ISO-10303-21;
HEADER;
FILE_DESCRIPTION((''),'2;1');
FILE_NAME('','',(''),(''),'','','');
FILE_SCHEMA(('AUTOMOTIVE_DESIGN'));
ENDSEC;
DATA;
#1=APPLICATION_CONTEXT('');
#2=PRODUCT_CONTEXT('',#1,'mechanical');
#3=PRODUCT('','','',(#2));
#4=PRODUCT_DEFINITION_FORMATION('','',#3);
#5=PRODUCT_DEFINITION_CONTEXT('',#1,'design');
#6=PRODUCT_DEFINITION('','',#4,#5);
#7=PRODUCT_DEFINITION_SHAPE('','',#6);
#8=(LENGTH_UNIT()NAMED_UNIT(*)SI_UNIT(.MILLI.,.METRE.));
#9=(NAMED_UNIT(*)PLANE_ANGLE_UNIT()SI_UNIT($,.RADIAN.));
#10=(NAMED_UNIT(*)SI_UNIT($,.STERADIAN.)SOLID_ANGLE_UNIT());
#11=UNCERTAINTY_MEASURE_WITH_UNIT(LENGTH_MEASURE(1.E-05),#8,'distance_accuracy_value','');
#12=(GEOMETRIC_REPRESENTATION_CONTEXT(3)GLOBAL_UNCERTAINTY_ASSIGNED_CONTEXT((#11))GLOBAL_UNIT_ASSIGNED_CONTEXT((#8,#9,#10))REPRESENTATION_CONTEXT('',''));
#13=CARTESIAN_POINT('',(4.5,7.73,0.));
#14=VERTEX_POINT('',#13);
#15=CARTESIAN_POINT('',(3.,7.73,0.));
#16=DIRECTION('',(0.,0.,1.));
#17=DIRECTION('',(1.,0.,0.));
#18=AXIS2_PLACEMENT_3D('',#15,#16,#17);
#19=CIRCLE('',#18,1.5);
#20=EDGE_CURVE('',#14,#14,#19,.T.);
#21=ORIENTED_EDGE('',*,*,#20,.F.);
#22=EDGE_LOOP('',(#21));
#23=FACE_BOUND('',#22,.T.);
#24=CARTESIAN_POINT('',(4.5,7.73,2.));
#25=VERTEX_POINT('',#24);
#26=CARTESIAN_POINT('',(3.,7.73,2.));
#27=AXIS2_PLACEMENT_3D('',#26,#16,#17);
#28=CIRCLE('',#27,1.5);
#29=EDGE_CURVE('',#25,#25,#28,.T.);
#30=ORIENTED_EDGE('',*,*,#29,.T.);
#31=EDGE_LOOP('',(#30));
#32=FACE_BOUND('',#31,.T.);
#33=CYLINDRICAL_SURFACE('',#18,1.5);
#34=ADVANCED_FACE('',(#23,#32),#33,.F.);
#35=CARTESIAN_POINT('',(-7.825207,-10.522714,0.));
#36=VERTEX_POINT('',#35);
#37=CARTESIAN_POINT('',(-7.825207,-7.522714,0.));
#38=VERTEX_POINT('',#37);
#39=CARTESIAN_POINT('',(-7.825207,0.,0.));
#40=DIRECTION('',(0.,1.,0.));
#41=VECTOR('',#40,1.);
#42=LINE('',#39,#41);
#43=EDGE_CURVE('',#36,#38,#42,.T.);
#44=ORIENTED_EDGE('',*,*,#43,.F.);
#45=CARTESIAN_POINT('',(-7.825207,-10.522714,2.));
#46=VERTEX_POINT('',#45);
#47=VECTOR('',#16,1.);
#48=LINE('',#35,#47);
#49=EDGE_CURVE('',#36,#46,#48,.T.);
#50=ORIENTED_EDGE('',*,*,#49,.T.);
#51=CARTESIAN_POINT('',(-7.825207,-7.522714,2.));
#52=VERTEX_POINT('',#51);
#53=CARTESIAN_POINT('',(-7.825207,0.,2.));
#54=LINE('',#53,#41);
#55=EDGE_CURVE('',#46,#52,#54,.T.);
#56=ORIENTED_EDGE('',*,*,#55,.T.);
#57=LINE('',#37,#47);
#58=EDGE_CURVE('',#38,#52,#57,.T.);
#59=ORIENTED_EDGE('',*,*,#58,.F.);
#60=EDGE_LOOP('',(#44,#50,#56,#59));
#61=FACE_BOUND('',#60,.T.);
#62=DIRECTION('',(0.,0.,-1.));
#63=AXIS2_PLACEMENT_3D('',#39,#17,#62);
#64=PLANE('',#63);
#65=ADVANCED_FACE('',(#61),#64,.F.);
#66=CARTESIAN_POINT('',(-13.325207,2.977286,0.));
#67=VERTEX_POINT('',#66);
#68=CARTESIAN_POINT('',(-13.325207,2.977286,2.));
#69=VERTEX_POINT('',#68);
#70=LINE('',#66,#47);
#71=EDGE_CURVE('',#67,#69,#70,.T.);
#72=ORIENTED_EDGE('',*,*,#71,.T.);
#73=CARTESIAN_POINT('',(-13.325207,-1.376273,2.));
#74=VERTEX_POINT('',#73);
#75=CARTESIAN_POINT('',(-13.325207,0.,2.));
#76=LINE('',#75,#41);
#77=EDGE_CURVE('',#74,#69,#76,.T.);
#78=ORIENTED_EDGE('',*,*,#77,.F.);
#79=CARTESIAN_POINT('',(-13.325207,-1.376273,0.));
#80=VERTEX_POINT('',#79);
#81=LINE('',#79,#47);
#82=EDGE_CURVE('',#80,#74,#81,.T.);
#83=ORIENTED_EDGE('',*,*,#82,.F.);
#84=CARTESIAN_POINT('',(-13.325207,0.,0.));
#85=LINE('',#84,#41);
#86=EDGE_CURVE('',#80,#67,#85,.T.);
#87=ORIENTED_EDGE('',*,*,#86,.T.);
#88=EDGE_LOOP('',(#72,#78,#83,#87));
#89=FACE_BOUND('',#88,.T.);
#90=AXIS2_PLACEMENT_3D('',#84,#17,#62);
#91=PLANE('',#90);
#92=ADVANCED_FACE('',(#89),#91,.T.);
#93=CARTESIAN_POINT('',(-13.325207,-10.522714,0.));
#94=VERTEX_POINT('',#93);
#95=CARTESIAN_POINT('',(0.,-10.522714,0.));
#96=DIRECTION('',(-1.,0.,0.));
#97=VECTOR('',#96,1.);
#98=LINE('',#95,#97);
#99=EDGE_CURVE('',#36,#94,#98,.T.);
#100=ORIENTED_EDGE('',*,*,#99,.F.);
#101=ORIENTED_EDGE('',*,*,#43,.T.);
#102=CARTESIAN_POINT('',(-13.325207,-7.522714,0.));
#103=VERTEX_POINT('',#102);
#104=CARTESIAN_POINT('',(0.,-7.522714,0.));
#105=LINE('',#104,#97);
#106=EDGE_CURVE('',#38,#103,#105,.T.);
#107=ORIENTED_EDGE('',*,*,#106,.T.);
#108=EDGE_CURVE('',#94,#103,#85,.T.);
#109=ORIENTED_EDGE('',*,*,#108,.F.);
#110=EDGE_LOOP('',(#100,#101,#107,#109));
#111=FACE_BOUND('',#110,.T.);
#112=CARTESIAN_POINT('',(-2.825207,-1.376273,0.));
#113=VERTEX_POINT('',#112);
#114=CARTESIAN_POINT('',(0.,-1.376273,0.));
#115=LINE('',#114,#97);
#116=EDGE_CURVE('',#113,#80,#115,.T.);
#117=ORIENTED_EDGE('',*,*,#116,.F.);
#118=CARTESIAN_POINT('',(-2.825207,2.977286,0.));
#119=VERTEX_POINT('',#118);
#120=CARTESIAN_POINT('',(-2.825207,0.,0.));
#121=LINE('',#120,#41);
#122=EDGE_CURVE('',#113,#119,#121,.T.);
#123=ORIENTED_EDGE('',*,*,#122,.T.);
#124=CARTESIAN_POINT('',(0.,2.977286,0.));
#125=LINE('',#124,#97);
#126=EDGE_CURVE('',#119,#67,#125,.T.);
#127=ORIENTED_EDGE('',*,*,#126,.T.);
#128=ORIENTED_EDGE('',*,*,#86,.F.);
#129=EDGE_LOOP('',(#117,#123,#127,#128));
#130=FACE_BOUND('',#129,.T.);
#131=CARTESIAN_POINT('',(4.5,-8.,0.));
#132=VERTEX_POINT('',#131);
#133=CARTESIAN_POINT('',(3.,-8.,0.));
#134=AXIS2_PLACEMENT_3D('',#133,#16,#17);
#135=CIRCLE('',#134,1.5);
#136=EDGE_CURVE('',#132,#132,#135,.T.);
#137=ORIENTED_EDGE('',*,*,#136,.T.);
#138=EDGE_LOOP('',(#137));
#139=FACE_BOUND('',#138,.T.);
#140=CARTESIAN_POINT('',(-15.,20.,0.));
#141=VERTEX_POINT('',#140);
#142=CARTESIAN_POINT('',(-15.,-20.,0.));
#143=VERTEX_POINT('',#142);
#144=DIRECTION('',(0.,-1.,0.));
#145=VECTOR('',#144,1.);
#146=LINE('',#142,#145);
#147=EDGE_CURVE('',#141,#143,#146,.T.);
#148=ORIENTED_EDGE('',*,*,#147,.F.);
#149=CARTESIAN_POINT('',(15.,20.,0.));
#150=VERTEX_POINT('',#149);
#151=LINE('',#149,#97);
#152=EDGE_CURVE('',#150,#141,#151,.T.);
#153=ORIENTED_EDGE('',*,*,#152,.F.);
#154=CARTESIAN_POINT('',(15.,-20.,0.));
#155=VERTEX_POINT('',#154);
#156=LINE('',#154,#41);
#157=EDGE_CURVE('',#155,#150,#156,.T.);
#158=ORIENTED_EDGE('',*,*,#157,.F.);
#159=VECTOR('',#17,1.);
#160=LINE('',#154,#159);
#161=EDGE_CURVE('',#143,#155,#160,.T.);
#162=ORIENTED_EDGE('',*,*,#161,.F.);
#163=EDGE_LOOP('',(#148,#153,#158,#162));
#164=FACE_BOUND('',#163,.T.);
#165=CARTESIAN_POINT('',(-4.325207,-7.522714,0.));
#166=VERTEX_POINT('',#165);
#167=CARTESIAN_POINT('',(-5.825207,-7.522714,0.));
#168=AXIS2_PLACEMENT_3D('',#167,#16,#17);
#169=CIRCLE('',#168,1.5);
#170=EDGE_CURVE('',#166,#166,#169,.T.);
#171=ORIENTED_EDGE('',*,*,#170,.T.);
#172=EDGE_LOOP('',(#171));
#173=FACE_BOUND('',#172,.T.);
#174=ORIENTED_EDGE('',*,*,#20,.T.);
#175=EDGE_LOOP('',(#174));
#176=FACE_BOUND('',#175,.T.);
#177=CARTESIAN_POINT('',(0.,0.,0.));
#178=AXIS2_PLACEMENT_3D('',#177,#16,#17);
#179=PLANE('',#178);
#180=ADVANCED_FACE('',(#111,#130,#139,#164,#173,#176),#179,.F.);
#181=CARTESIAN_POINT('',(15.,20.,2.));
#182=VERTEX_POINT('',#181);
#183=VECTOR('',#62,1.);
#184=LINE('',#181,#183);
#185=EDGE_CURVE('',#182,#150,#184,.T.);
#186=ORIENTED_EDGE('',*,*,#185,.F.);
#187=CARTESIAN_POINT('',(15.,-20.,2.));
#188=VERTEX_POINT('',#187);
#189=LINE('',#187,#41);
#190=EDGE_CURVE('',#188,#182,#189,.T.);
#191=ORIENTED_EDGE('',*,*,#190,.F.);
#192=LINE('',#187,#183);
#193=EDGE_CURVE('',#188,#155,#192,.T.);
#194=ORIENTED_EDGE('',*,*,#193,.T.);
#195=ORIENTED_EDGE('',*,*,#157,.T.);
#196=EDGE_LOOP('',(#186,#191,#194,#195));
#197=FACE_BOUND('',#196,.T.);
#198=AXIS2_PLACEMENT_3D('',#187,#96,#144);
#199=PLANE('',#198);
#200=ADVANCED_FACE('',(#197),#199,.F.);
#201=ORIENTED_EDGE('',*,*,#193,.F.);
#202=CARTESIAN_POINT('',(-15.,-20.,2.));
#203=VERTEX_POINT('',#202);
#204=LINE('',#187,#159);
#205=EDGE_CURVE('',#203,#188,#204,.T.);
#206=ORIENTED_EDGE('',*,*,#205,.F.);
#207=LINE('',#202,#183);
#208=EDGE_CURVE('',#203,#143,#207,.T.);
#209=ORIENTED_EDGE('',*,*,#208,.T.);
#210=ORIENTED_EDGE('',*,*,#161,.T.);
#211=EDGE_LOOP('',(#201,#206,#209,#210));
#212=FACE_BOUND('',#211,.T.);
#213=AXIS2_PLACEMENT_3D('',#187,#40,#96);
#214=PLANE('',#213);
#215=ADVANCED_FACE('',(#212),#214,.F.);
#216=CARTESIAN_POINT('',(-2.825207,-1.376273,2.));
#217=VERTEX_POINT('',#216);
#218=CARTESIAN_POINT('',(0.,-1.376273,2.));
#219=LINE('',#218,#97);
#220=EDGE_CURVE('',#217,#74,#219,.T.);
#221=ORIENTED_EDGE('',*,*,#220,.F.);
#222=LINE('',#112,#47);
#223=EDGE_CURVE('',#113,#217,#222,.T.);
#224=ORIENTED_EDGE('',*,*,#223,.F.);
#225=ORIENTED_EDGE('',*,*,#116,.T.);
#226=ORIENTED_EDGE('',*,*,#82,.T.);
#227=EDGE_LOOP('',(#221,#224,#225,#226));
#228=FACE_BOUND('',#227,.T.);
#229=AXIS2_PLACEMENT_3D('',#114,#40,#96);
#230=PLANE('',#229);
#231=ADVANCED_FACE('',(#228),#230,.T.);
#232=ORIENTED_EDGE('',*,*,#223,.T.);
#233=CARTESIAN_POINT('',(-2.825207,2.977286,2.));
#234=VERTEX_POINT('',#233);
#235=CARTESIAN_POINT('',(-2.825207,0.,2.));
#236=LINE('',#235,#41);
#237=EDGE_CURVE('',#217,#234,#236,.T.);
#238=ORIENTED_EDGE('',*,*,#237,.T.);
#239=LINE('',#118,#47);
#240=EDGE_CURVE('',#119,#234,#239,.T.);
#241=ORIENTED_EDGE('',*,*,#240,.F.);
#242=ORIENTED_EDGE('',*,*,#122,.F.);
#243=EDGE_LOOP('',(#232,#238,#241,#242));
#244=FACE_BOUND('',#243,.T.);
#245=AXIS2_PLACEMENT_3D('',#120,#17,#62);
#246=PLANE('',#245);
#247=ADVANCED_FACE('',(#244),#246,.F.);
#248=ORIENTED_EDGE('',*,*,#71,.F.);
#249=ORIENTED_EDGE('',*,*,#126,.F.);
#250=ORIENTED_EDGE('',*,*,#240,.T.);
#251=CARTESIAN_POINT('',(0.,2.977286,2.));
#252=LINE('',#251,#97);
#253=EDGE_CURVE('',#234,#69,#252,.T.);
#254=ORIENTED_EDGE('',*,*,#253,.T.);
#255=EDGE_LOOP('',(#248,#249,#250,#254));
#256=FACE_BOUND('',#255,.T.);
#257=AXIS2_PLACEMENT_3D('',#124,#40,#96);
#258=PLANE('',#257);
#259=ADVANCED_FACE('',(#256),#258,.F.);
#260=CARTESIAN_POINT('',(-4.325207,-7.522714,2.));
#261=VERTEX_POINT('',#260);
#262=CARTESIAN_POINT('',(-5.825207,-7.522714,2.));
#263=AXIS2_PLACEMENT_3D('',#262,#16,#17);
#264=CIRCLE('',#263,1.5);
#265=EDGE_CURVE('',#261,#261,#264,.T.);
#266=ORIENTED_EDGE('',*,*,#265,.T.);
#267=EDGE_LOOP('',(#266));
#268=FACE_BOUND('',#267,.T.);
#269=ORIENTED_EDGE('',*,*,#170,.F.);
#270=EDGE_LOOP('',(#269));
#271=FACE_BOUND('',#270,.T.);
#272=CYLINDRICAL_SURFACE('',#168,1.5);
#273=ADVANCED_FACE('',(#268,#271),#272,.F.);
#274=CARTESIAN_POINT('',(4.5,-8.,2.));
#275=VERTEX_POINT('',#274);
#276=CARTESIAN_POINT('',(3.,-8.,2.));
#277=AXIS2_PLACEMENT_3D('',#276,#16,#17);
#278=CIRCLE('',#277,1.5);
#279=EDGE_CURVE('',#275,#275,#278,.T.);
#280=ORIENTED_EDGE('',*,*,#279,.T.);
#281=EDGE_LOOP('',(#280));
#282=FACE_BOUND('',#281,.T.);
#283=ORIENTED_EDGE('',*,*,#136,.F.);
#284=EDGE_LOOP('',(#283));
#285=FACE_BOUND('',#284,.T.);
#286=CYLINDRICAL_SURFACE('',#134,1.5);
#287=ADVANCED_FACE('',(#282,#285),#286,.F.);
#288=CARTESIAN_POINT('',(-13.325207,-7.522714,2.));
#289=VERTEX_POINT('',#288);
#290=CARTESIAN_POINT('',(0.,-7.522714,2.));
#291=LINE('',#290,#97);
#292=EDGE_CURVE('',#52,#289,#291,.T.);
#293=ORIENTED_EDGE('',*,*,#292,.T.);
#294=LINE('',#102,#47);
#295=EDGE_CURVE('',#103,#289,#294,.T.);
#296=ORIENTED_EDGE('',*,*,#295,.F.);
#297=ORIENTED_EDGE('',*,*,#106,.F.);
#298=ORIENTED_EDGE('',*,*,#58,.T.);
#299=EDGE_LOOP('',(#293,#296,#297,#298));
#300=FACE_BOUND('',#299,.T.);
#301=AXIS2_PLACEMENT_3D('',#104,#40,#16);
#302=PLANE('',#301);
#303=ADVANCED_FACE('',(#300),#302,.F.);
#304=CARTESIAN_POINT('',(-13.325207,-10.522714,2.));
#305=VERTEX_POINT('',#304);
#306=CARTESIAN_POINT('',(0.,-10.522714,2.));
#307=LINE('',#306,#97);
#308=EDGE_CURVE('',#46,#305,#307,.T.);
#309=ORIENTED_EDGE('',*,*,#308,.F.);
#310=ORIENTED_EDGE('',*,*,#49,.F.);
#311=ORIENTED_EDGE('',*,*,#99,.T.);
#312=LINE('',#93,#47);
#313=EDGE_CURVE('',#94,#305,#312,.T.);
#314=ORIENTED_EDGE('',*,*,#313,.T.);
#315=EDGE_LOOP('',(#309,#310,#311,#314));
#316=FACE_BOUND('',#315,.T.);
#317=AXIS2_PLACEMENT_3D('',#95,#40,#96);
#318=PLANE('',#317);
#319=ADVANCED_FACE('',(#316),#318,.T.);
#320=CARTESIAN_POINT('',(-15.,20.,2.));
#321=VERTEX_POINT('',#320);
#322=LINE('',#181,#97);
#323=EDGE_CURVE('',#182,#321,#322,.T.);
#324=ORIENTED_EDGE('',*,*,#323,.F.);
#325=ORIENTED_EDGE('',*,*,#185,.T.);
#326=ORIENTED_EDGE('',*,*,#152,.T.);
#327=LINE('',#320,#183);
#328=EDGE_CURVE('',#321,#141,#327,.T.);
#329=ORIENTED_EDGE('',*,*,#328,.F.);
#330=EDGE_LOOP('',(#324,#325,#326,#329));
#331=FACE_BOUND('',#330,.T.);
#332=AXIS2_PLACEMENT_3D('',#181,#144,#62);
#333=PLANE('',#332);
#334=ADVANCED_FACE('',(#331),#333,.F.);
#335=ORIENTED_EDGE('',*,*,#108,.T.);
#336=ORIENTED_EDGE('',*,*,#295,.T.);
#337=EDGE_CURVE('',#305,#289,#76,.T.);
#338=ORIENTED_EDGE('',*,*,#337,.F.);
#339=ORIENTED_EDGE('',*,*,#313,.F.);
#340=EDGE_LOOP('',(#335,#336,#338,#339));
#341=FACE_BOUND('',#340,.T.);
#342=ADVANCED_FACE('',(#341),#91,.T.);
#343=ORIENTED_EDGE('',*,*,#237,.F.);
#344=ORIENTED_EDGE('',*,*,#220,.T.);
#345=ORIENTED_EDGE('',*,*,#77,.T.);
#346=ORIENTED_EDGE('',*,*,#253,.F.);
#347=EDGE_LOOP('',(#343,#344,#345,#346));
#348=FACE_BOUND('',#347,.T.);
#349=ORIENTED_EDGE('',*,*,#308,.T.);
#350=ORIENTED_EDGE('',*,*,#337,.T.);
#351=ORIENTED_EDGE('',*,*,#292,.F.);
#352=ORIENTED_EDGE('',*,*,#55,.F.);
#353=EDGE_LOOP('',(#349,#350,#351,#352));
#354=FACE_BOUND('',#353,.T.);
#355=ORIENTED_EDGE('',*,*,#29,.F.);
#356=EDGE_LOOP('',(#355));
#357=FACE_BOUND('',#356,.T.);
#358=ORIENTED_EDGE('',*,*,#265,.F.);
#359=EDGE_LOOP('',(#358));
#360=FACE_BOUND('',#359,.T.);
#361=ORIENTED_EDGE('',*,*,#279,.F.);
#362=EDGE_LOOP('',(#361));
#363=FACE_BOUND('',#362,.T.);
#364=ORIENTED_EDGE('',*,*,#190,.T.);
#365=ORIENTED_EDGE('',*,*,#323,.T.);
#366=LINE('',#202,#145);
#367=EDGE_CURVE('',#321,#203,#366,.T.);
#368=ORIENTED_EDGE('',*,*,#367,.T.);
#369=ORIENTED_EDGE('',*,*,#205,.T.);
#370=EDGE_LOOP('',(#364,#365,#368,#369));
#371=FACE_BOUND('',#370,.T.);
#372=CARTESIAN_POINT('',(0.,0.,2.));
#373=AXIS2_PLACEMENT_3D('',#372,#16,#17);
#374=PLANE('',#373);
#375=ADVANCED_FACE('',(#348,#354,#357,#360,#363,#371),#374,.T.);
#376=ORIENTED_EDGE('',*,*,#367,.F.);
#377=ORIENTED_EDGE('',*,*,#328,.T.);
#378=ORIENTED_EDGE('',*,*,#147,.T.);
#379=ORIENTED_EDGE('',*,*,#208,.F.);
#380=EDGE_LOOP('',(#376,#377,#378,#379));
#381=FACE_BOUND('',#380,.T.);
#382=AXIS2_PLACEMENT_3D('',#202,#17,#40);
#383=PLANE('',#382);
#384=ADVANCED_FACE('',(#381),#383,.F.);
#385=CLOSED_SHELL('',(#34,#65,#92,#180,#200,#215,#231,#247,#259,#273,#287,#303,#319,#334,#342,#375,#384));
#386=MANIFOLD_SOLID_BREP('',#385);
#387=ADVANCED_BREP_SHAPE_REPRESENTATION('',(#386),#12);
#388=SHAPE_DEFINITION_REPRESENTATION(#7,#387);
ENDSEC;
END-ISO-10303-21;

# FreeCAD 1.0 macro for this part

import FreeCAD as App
import Part
import Sketcher
from FreeCAD import Vector


def add_polygon(sketch, points):
    """Adds a closed chain of lines whose ends are joined by coincident constraints."""
    first, n = sketch.GeometryCount, len(points)
    for a, b in zip(points, points[1:] + points[:1]):
        sketch.addGeometry(Part.LineSegment(App.Vector(*a, 0), App.Vector(*b, 0)), False)
    for i in range(n):
        sketch.addConstraint(Sketcher.Constraint("Coincident", first + i, 2, first + (i + 1) % n, 1))

doc = App.newDocument("Part")
params = doc.addObject("Spreadsheet::Sheet", "Params")
for row, (alias, value) in enumerate([
    ("sketch1_width", "30 mm"),
    ("sketch1_height", "40 mm"),
    ("pad1_length", "2 mm"),
    ("sketch2_diameter", "3 mm"),
    ("sketch2_height", "3 mm"),
    ("sketch2_width", "5.5 mm"),
    ("sketch2_width2", "10.5 mm"),
    ("pocket1_length", "2 mm"),
    ("sketch3_diameter", "3 mm"),
    ("pocket2_length", "2 mm"),
], start=1):
    params.set(f"A{row}", alias)
    params.set(f"B{row}", "=" + value)
    params.setAlias(f"B{row}", alias)

body = doc.addObject("PartDesign::Body", "Body")

sketch1 = body.newObject("Sketcher::SketchObject", "Sketch")
sketch1.AttachmentSupport = (doc.getObject("XY_Plane"), [""])
sketch1.MapMode = "FlatFace"
add_polygon(sketch1, [(-15, 20), (-15, -20), (15, -20), (15, 20)])
sketch1.addConstraint([
    Sketcher.Constraint("Vertical", 0),
    Sketcher.Constraint("Horizontal", 1),
    Sketcher.Constraint("Vertical", 2),
    Sketcher.Constraint("Horizontal", 3),
    Sketcher.Constraint("Symmetric", 0, 2, 2, 2, -1, 1),
    Sketcher.Constraint("DistanceX", 1, 1, 1, 2, 30.0),
    Sketcher.Constraint("DistanceY", 0, 2, 0, 1, 40.0),
])
sketch1.setExpression("Constraints[9]", "Params.sketch1_width")
sketch1.setExpression("Constraints[10]", "Params.sketch1_height")
pad1 = body.newObject("PartDesign::Pad", "Pad")
pad1.Profile = sketch1
pad1.setExpression("Length", "Params.pad1_length")

sketch2 = body.newObject("Sketcher::SketchObject", "Sketch001")
sketch2.AttachmentSupport = (doc.getObject("XY_Plane"), [""])
sketch2.MapMode = "FlatFace"
sketch2.AttachmentOffset = App.Placement(Vector(0, 0, 2), App.Rotation())
sketch2.addGeometry(Part.Circle(Vector(-5.8, -7.5, 0), Vector(0, 0, 1), 1.5), False)
add_polygon(sketch2, [(-13.3, -7.5), (-13.3, -10.5), (-7.8, -10.5), (-7.8, -7.5)])
add_polygon(sketch2, [(-13.3, 3), (-13.3, -1.4), (-2.8, -1.4), (-2.8, 3)])
sketch2.addConstraint([
    Sketcher.Constraint("Vertical", 1),
    Sketcher.Constraint("Horizontal", 2),
    Sketcher.Constraint("Vertical", 3),
    Sketcher.Constraint("Horizontal", 4),
    Sketcher.Constraint("Vertical", 5),
    Sketcher.Constraint("Horizontal", 6),
    Sketcher.Constraint("Vertical", 7),
    Sketcher.Constraint("Horizontal", 8),
    Sketcher.Constraint("Horizontal", 0, 3, 3, 2),
    Sketcher.Constraint("Vertical", 4, 2, 5, 2),
    Sketcher.Constraint("Diameter", 0, 3.0),
    Sketcher.Constraint("DistanceY", 1, 2, 1, 1, 3.0),
    Sketcher.Constraint("DistanceX", 2, 1, 2, 2, 5.5),
    Sketcher.Constraint("DistanceX", 6, 1, 6, 2, 10.5),
    Sketcher.Constraint("DistanceX", 2, 2, 0, 3, 2.0),
    Sketcher.Constraint("DistanceY", 0, 3, 7, 2, 10.5),
    Sketcher.Constraint("DistanceY", 5, 2, 5, 1, 4.353559),
    Sketcher.Constraint("DistanceX", 0, 3, -1, 1, 5.825207),
    Sketcher.Constraint("DistanceY", 0, 3, -1, 1, 7.522714),
])
sketch2.setExpression("Constraints[18]", "Params.sketch2_diameter")
sketch2.setExpression("Constraints[19]", "Params.sketch2_height")
sketch2.setExpression("Constraints[20]", "Params.sketch2_width")
sketch2.setExpression("Constraints[21]", "Params.sketch2_width2")
pocket1 = body.newObject("PartDesign::Pocket", "Pocket")
pocket1.Profile = sketch2
pocket1.setExpression("Length", "Params.pocket1_length")

sketch3 = body.newObject("Sketcher::SketchObject", "Sketch002")
sketch3.AttachmentSupport = (doc.getObject("XY_Plane"), [""])
sketch3.MapMode = "FlatFace"
sketch3.AttachmentOffset = App.Placement(Vector(0, 0, 2), App.Rotation())
sketch3.addGeometry([
    Part.Circle(Vector(3, -8, 0), Vector(0, 0, 1), 1.5),
    Part.Circle(Vector(3, 7.7, 0), Vector(0, 0, 1), 1.5),
], False)
sketch3.addConstraint([
    Sketcher.Constraint("Equal", 0, 1),
    Sketcher.Constraint("Vertical", 0, 3, 1, 3),
    Sketcher.Constraint("Diameter", 0, 3.0),
    Sketcher.Constraint("DistanceX", -1, 1, 0, 3, 3.0),
    Sketcher.Constraint("DistanceY", 0, 3, -1, 1, 8.0),
    Sketcher.Constraint("DistanceY", -1, 1, 1, 3, 7.73),
])
sketch3.setExpression("Constraints[2]", "Params.sketch3_diameter")
pocket2 = body.newObject("PartDesign::Pocket", "Pocket001")
pocket2.Profile = sketch3
pocket2.setExpression("Length", "Params.pocket2_length")

doc.recompute()
